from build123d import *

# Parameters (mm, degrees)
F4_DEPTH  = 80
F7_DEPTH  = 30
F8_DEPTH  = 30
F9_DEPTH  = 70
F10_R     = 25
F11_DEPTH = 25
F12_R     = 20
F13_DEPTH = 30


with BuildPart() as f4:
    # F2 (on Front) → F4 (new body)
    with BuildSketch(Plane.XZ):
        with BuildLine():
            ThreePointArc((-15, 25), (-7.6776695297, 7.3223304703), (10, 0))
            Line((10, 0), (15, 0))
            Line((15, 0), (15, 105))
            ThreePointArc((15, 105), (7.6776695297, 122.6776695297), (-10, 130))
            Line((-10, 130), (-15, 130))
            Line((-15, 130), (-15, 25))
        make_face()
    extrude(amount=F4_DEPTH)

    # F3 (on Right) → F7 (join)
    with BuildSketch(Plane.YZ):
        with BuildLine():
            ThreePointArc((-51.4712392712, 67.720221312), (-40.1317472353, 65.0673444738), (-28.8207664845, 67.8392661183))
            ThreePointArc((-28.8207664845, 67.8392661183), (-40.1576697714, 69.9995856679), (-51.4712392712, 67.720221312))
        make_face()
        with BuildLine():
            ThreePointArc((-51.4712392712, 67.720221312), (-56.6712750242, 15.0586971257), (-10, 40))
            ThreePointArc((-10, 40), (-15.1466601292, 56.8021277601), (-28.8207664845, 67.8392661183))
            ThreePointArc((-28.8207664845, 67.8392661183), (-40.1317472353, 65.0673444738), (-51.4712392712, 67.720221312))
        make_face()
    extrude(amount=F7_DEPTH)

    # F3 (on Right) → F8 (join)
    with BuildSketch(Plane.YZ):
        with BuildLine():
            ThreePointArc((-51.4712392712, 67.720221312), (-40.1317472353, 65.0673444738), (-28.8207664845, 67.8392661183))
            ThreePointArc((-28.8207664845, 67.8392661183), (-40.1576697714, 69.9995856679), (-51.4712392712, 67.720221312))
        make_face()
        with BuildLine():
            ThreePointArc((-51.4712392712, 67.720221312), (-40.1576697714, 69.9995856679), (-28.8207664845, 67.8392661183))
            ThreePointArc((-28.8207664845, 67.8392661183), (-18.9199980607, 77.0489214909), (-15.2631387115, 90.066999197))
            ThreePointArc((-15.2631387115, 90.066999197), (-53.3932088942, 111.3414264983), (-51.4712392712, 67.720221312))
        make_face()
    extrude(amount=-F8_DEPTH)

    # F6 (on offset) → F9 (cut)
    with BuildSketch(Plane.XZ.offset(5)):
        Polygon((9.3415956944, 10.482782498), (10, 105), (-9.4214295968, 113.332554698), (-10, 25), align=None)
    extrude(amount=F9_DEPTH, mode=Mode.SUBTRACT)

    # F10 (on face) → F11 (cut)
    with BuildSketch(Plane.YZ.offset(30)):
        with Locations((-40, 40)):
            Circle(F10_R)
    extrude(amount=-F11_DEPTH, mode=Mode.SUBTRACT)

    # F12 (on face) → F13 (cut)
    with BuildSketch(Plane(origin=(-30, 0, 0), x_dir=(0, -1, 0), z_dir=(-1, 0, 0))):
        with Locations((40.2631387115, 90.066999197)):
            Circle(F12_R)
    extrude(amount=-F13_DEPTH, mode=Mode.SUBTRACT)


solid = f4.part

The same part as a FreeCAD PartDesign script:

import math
import FreeCAD as App
import Part
import Sketcher

V = App.Vector
Q = App.Units.Quantity

doc = App.newDocument("Part")
body = doc.addObject("PartDesign::Body", "Body")

# Sketch on XZ plane
sketch1 = body.newObject("Sketcher::SketchObject", "Sketch")
sketch1.AttachmentSupport = (doc.getObject("XZ_Plane"), [""])
sketch1.MapMode = "FlatFace"
sketch1.addGeometry(Part.ArcOfCircle(Part.Circle(V(10, 25, 0), V(0, 0, 1), 25), math.radians(180), math.radians(270)), False)
sketch1.addGeometry(Part.LineSegment(V(10, 0, 0), V(15, 0, 0)), False)
sketch1.addGeometry(Part.LineSegment(V(15, 0, 0), V(15, 105, 0)), False)
sketch1.addGeometry(Part.ArcOfCircle(Part.Circle(V(-10, 105, 0), V(0, 0, 1), 25), math.radians(0), math.radians(90)), False)
sketch1.addGeometry(Part.LineSegment(V(-10, 130, 0), V(-15, 130, 0)), False)
sketch1.addGeometry(Part.LineSegment(V(-15, 130, 0), V(-15, 25, 0)), False)
sketch1.addConstraint(Sketcher.Constraint("Tangent", 0, 2, 1, 1))
sketch1.addConstraint(Sketcher.Constraint("Coincident", 1, 2, 2, 1))
sketch1.addConstraint(Sketcher.Constraint("Tangent", 2, 2, 3, 1))
sketch1.addConstraint(Sketcher.Constraint("Tangent", 3, 2, 4, 1))
sketch1.addConstraint(Sketcher.Constraint("Coincident", 4, 2, 5, 1))
sketch1.addConstraint(Sketcher.Constraint("Tangent", 5, 2, 0, 1))
sketch1.addConstraint(Sketcher.Constraint("Horizontal", 1))
sketch1.addConstraint(Sketcher.Constraint("Vertical", 2))
sketch1.addConstraint(Sketcher.Constraint("Horizontal", 4))
sketch1.addConstraint(Sketcher.Constraint("Vertical", 5))
sketch1.addConstraint(Sketcher.Constraint("Equal", 0, 3))
sketch1.addConstraint(Sketcher.Constraint("PointOnObject", 0, 2, -1))
sketch1.addConstraint(Sketcher.Constraint("Radius", 0, Q("25 mm")))
sketch1.addConstraint(Sketcher.Constraint("DistanceX", 1, 1, 1, 2, Q("5 mm")))
sketch1.addConstraint(Sketcher.Constraint("DistanceY", 2, 1, 2, 2, Q("105 mm")))
sketch1.addConstraint(Sketcher.Constraint("DistanceX", -1, 1, 0, 3, Q("10 mm")))
pad1 = body.newObject("PartDesign::Pad", "Pad")
pad1.Profile = sketch1
pad1.Length = 80

# Sketch on YZ plane
sketch2 = body.newObject("Sketcher::SketchObject", "Sketch001")
sketch2.AttachmentSupport = (doc.getObject("YZ_Plane"), [""])
sketch2.MapMode = "FlatFace"
sketch2.addGeometry(Part.Circle(V(-40, 40, 0), V(0, 0, 1), 30), False)
sketch2.addConstraint(Sketcher.Constraint("Diameter", 0, Q("60 mm")))
sketch2.addConstraint(Sketcher.Constraint("DistanceX", 0, 3, -1, 1, Q("40 mm")))
sketch2.addConstraint(Sketcher.Constraint("DistanceY", -1, 1, 0, 3, Q("40 mm")))
pad2 = body.newObject("PartDesign::Pad", "Pad001")
pad2.Profile = sketch2
pad2.Length = 30

# Sketch on YZ plane
sketch3 = body.newObject("Sketcher::SketchObject", "Sketch002")
sketch3.AttachmentSupport = (doc.getObject("YZ_Plane"), [""])
sketch3.MapMode = "FlatFace"
sketch3.addGeometry(Part.ArcOfCircle(Part.Circle(V(-40, 90, 0), V(0, 0, 1), 25), math.radians(-117), math.radians(-63)), False)
sketch3.addGeometry(Part.ArcOfCircle(Part.Circle(V(-40, 90, 0), V(0, 0, 1), 25), math.radians(-63), math.radians(0)), False)
sketch3.addGeometry(Part.ArcOfCircle(Part.Circle(V(-40, 90, 0), V(0, 0, 1), 25), math.radians(0), math.radians(243)), False)
sketch3.addConstraint(Sketcher.Constraint("Tangent", 0, 2, 1, 1))
sketch3.addConstraint(Sketcher.Constraint("Tangent", 1, 2, 2, 1))
sketch3.addConstraint(Sketcher.Constraint("Tangent", 2, 2, 0, 1))
sketch3.addConstraint(Sketcher.Constraint("Horizontal", 2, 3, 1, 2))
sketch3.addConstraint(Sketcher.Constraint("Radius", 0, Q("25 mm")))
sketch3.addConstraint(Sketcher.Constraint("DistanceY", -1, 1, 0, 3, Q("90.066999 mm")))
sketch3.addConstraint(Sketcher.Constraint("DistanceX", 2, 2, 0, 3, Q("11.208101 mm")))
sketch3.addConstraint(Sketcher.Constraint("DistanceX", 0, 3, -1, 1, Q("40.263139 mm")))
sketch3.addConstraint(Sketcher.Constraint("DistanceX", 0, 2, -1, 1, Q("28.820766 mm")))
pad3 = body.newObject("PartDesign::Pad", "Pad002")
pad3.Profile = sketch3
pad3.Length = 30
pad3.Reversed = True

# Sketch on XZ plane
sketch4 = body.newObject("Sketcher::SketchObject", "Sketch003")
sketch4.AttachmentSupport = (doc.getObject("XZ_Plane"), [""])
sketch4.MapMode = "FlatFace"
sketch4.AttachmentOffset = App.Placement(V(0, 0, 5), App.Rotation())
sketch4.addGeometry(Part.LineSegment(V(9, 10, 0), V(10, 105, 0)), False)
sketch4.addGeometry(Part.LineSegment(V(10, 105, 0), V(-9, 113, 0)), False)
sketch4.addGeometry(Part.LineSegment(V(-9, 113, 0), V(-10, 25, 0)), False)
sketch4.addGeometry(Part.LineSegment(V(-10, 25, 0), V(9, 10, 0)), False)
sketch4.addConstraint(Sketcher.Constraint("Coincident", 0, 2, 1, 1))
sketch4.addConstraint(Sketcher.Constraint("Coincident", 1, 2, 2, 1))
sketch4.addConstraint(Sketcher.Constraint("Coincident", 2, 2, 3, 1))
sketch4.addConstraint(Sketcher.Constraint("Coincident", 3, 2, 0, 1))
sketch4.addConstraint(Sketcher.Constraint("DistanceX", -1, 1, 0, 2, Q("10 mm")))
sketch4.addConstraint(Sketcher.Constraint("DistanceY", -1, 1, 0, 2, Q("105 mm")))
sketch4.addConstraint(Sketcher.Constraint("DistanceX", 2, 2, -1, 1, Q("10 mm")))
sketch4.addConstraint(Sketcher.Constraint("DistanceY", -1, 1, 2, 2, Q("25 mm")))
sketch4.addConstraint(Sketcher.Constraint("Distance", 0, Q("94.519511 mm")))
sketch4.addConstraint(Sketcher.Constraint("Distance", 2, Q("88.334449 mm")))
sketch4.addConstraint(Sketcher.Constraint("Distance", 3, Q("24.183609 mm")))
sketch4.addConstraint(Sketcher.Constraint("DistanceX", 1, 2, -1, 1, Q("9.42143 mm")))
pocket1 = body.newObject("PartDesign::Pocket", "Pocket")
pocket1.Profile = sketch4
pocket1.Length = 70
pocket1.Reversed = True

# Sketch on YZ plane
sketch5 = body.newObject("Sketcher::SketchObject", "Sketch004")
sketch5.AttachmentSupport = (doc.getObject("YZ_Plane"), [""])
sketch5.MapMode = "FlatFace"
sketch5.AttachmentOffset = App.Placement(V(0, 0, 30), App.Rotation())
sketch5.addGeometry(Part.Circle(V(-40, 40, 0), V(0, 0, 1), 25), False)
sketch5.addConstraint(Sketcher.Constraint("Diameter", 0, Q("50 mm")))
sketch5.addConstraint(Sketcher.Constraint("DistanceX", 0, 3, -1, 1, Q("40 mm")))
sketch5.addConstraint(Sketcher.Constraint("DistanceY", -1, 1, 0, 3, Q("40 mm")))
pocket2 = body.newObject("PartDesign::Pocket", "Pocket001")
pocket2.Profile = sketch5
pocket2.Length = 25

# Sketch on YZ plane
sketch6 = body.newObject("Sketcher::SketchObject", "Sketch005")
sketch6.AttachmentSupport = (doc.getObject("YZ_Plane"), [""])
sketch6.MapMode = "FlatFace"
sketch6.AttachmentOffset = App.Placement(V(0, 0, -30), App.Rotation())
sketch6.addGeometry(Part.Circle(V(-40, 90, 0), V(0, 0, 1), 20), False)
sketch6.addConstraint(Sketcher.Constraint("Diameter", 0, Q("40 mm")))
sketch6.addConstraint(Sketcher.Constraint("DistanceY", -1, 1, 0, 3, Q("90.066999 mm")))
sketch6.addConstraint(Sketcher.Constraint("DistanceX", 0, 3, -1, 1, Q("40.263139 mm")))
pocket3 = body.newObject("PartDesign::Pocket", "Pocket002")
pocket3.Profile = sketch6
pocket3.Length = 30
pocket3.Reversed = True

doc.recompute()
